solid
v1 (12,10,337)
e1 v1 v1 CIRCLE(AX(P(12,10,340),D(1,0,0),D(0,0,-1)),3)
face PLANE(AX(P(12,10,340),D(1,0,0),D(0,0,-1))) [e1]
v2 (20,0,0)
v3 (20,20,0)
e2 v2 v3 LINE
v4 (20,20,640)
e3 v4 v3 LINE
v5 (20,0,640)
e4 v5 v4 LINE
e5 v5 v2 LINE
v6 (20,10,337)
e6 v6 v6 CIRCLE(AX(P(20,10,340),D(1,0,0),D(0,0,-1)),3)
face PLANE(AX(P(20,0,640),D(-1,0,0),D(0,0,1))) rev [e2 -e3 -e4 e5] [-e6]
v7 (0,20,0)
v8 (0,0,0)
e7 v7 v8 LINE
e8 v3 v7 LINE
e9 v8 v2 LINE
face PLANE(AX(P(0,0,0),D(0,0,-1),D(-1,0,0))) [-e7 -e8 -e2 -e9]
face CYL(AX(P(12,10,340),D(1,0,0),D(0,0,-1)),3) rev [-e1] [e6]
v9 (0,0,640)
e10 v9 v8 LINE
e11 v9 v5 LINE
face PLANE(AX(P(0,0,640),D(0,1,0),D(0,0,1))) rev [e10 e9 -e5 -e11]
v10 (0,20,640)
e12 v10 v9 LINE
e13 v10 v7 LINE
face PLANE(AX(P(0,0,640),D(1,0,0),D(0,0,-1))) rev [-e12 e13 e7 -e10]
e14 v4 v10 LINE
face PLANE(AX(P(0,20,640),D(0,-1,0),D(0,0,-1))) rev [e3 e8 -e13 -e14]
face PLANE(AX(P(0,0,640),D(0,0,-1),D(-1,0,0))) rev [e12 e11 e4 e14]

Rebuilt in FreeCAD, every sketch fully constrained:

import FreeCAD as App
import Part
import Sketcher


def add_polygon(sketch, points):
    """Adds a closed chain of lines whose ends are joined by coincident constraints."""
    first, n = sketch.GeometryCount, len(points)
    for a, b in zip(points, points[1:] + points[:1]):
        sketch.addGeometry(Part.LineSegment(App.Vector(*a, 0), App.Vector(*b, 0)), False)
    for i in range(n):
        sketch.addConstraint(Sketcher.Constraint("Coincident", first + i, 2, first + (i + 1) % n, 1))

doc = App.newDocument("Part")
body = doc.addObject("PartDesign::Body", "Body")

# Sketch on XY plane
sketch1 = doc.addObject("Sketcher::SketchObject", "Sketch")
body.addObject(sketch1)
sketch1.AttachmentSupport = (doc.XY_Plane, [""])
sketch1.MapMode = "FlatFace"
add_polygon(sketch1, [(0, 20), (0, 0), (20, 0), (20, 20)])  # lines 0-3
sketch1.addConstraint([
    Sketcher.Constraint("Vertical", 0),
    Sketcher.Constraint("Horizontal", 1),
    Sketcher.Constraint("Vertical", 2),
    Sketcher.Constraint("Horizontal", 3),
    Sketcher.Constraint("Coincident", 0, 2, -1, 1),
    Sketcher.Constraint("Equal", 3, 0),
    Sketcher.Constraint("DistanceX", 1, 1, 1, 2, 20.0),
])
pad1 = doc.addObject("PartDesign::Pad", "Pad")
body.addObject(pad1)
pad1.Profile = sketch1
pad1.Length = 640

# Sketch on YZ plane
sketch2 = doc.addObject("Sketcher::SketchObject", "Sketch001")
body.addObject(sketch2)
sketch2.AttachmentSupport = (doc.YZ_Plane, [""])
sketch2.MapMode = "FlatFace"
sketch2.AttachmentOffset = App.Placement(App.Vector(0, 0, 20), App.Rotation())
sketch2.addGeometry(Part.Circle(App.Vector(10, 340, 0), App.Vector(0, 0, 1), 3), False)
sketch2.addConstraint([
    Sketcher.Constraint("Diameter", 0, 6.0),
    Sketcher.Constraint("DistanceX", -1, 1, 0, 3, 10.0),
    Sketcher.Constraint("DistanceY", -1, 1, 0, 3, 340.0),
])
pocket1 = doc.addObject("PartDesign::Pocket", "Pocket")
body.addObject(pocket1)
pocket1.Profile = sketch2
pocket1.Length = 8

doc.recompute()
